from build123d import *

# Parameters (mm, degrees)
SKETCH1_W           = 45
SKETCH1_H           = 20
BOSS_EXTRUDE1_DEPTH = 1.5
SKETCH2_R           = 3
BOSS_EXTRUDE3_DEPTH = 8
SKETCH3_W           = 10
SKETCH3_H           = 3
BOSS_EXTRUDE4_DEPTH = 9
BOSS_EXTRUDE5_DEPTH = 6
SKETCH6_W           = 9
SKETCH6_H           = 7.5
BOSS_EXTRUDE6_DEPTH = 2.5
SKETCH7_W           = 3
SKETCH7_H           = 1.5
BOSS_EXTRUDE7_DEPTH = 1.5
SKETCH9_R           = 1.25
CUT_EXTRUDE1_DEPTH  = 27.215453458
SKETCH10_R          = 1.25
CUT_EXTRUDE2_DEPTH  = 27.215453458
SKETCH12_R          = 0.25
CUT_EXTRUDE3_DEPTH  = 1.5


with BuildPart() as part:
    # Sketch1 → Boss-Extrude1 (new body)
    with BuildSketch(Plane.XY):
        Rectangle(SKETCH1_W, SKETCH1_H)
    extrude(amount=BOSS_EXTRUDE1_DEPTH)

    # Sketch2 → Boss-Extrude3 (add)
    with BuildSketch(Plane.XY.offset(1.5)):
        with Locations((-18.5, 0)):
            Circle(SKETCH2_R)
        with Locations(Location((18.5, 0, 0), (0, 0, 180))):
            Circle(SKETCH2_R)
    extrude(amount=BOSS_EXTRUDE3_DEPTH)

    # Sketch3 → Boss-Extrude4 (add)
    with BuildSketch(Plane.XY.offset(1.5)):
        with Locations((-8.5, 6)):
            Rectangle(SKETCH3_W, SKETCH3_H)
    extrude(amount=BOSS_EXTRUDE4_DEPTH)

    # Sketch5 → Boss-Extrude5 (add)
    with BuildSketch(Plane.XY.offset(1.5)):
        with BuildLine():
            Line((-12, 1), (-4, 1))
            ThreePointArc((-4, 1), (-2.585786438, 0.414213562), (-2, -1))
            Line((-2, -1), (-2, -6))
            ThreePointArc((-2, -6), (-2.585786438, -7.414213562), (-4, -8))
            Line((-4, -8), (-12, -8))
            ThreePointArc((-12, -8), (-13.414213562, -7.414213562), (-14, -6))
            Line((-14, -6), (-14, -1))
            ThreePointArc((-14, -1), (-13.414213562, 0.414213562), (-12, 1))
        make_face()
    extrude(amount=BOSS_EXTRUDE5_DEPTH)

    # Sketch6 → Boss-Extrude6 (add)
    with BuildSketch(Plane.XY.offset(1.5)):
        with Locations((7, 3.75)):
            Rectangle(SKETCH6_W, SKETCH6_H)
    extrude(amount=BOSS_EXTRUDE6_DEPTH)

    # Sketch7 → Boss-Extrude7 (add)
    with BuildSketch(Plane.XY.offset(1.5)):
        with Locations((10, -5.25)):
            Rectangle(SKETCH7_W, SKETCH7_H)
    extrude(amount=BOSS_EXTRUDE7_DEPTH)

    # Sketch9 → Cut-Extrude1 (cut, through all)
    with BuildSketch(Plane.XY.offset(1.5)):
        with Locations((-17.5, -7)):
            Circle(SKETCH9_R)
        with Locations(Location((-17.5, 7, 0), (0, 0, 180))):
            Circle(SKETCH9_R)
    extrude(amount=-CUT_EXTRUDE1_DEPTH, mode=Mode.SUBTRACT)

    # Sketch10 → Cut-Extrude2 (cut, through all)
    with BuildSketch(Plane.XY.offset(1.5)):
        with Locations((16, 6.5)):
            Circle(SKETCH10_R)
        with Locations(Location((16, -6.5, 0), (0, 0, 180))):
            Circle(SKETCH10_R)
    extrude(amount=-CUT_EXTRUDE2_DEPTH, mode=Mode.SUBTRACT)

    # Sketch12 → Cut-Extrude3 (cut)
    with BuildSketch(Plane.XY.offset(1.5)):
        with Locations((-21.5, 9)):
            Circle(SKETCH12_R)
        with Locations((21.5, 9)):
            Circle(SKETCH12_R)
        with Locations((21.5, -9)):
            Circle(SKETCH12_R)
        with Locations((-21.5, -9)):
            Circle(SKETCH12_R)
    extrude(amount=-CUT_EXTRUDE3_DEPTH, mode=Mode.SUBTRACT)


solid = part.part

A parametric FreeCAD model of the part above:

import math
import FreeCAD as App
import Part
import Sketcher

V = App.Vector
Q = App.Units.Quantity


def add_polygon(sketch, points):
    """Adds a closed chain of lines whose ends are joined by coincident constraints."""
    first, n = sketch.GeometryCount, len(points)
    for a, b in zip(points, points[1:] + points[:1]):
        sketch.addGeometry(Part.LineSegment(App.Vector(*a, 0), App.Vector(*b, 0)), False)
    for i in range(n):
        sketch.addConstraint(Sketcher.Constraint("Coincident", first + i, 2, first + (i + 1) % n, 1))

doc = App.newDocument("Part")
body = doc.addObject("PartDesign::Body", "Body")

# Sketch on XY plane
sketch1 = doc.addObject("Sketcher::SketchObject", "Sketch")
body.addObject(sketch1)
sketch1.AttachmentSupport = (doc.XY_Plane, [""])
sketch1.MapMode = "FlatFace"
add_polygon(sketch1, [(-22.5, 10), (-22.5, -10), (22.5, -10), (22.5, 10)])  # lines 0-3
sketch1.addConstraint([
    Sketcher.Constraint("Vertical", 0),
    Sketcher.Constraint("Horizontal", 1),
    Sketcher.Constraint("Vertical", 2),
    Sketcher.Constraint("Horizontal", 3),
    Sketcher.Constraint("Symmetric", 0, 2, 2, 2, -1, 1),
    Sketcher.Constraint("DistanceX", 1, 1, 1, 2, Q("45 mm")),
    Sketcher.Constraint("DistanceY", 0, 2, 0, 1, Q("20 mm")),
])
pad1 = doc.addObject("PartDesign::Pad", "Pad")
body.addObject(pad1)
pad1.Profile = sketch1
pad1.Length = 1.5

# Sketch on XY plane
sketch2 = doc.addObject("Sketcher::SketchObject", "Sketch001")
body.addObject(sketch2)
sketch2.AttachmentSupport = (doc.XY_Plane, [""])
sketch2.MapMode = "FlatFace"
sketch2.AttachmentOffset = App.Placement(V(0, 0, 1.5), App.Rotation())
sketch2.addGeometry([
    Part.Circle(V(-18.5, 0, 0), V(0, 0, 1), 3),
    Part.Circle(V(18.5, 0, 0), V(0, 0, 1), 3),
], False)
sketch2.addConstraint([
    Sketcher.Constraint("Equal", 0, 1),
    Sketcher.Constraint("Symmetric", 0, 3, 1, 3, -1, 1),
    Sketcher.Constraint("PointOnObject", 0, 3, -1),
    Sketcher.Constraint("Diameter", 0, Q("6 mm")),
    Sketcher.Constraint("DistanceX", 0, 3, 1, 3, Q("37 mm")),
])
pad2 = doc.addObject("PartDesign::Pad", "Pad001")
body.addObject(pad2)
pad2.Profile = sketch2
pad2.Length = 8

# Sketch on XY plane
sketch3 = doc.addObject("Sketcher::SketchObject", "Sketch002")
body.addObject(sketch3)
sketch3.AttachmentSupport = (doc.XY_Plane, [""])
sketch3.MapMode = "FlatFace"
sketch3.AttachmentOffset = App.Placement(V(0, 0, 1.5), App.Rotation())
add_polygon(sketch3, [(-13.5, 7.5), (-13.5, 4.5), (-3.5, 4.5), (-3.5, 7.5)])  # lines 0-3
sketch3.addConstraint([
    Sketcher.Constraint("Vertical", 0),
    Sketcher.Constraint("Horizontal", 1),
    Sketcher.Constraint("Vertical", 2),
    Sketcher.Constraint("Horizontal", 3),
    Sketcher.Constraint("DistanceX", 1, 1, 1, 2, Q("10 mm")),
    Sketcher.Constraint("DistanceY", 0, 2, 0, 1, Q("3 mm")),
    Sketcher.Constraint("DistanceX", 0, 2, -1, 1, Q("13.5 mm")),
    Sketcher.Constraint("DistanceY", -1, 1, 0, 2, Q("4.5 mm")),
])
pad3 = doc.addObject("PartDesign::Pad", "Pad002")
body.addObject(pad3)
pad3.Profile = sketch3
pad3.Length = 9

# Sketch on XY plane
sketch4 = doc.addObject("Sketcher::SketchObject", "Sketch003")
body.addObject(sketch4)
sketch4.AttachmentSupport = (doc.XY_Plane, [""])
sketch4.MapMode = "FlatFace"
sketch4.AttachmentOffset = App.Placement(V(0, 0, 1.5), App.Rotation())
sketch4.addGeometry([
    Part.LineSegment(V(-4, 1, 0), V(-12, 1, 0)),  # 0
    Part.ArcOfCircle(Part.Circle(V(-12, -1, 0), V(0, 0, 1), 2), math.radians(90), math.radians(180)),  # 1
    Part.LineSegment(V(-14, -1, 0), V(-14, -6, 0)),  # 2
    Part.ArcOfCircle(Part.Circle(V(-12, -6, 0), V(0, 0, 1), 2), math.radians(-180), math.radians(-90)),  # 3
    Part.LineSegment(V(-12, -8, 0), V(-4, -8, 0)),  # 4
    Part.ArcOfCircle(Part.Circle(V(-4, -6, 0), V(0, 0, 1), 2), math.radians(-90), math.radians(0)),  # 5
    Part.LineSegment(V(-2, -6, 0), V(-2, -1, 0)),  # 6
    Part.ArcOfCircle(Part.Circle(V(-4, -1, 0), V(0, 0, 1), 2), math.radians(0), math.radians(90)),  # 7
], False)
sketch4.addConstraint([
    Sketcher.Constraint("Tangent", 0, 2, 1, 1),
    Sketcher.Constraint("Tangent", 1, 2, 2, 1),
    Sketcher.Constraint("Tangent", 2, 2, 3, 1),
    Sketcher.Constraint("Tangent", 3, 2, 4, 1),
    Sketcher.Constraint("Tangent", 4, 2, 5, 1),
    Sketcher.Constraint("Tangent", 5, 2, 6, 1),
    Sketcher.Constraint("Tangent", 6, 2, 7, 1),
    Sketcher.Constraint("Tangent", 7, 2, 0, 1),
    Sketcher.Constraint("Horizontal", 0),
    Sketcher.Constraint("Vertical", 2),
    Sketcher.Constraint("Horizontal", 4),
    Sketcher.Constraint("Vertical", 6),
    Sketcher.Constraint("Equal", 1, 3),
    Sketcher.Constraint("Equal", 3, 5),
    Sketcher.Constraint("Equal", 5, 7),
    Sketcher.Constraint("Radius", 1, Q("2 mm")),
    Sketcher.Constraint("DistanceX", 0, 2, 0, 1, Q("8 mm")),
    Sketcher.Constraint("DistanceY", 2, 2, 2, 1, Q("5 mm")),
    Sketcher.Constraint("DistanceX", 1, 3, -1, 1, Q("12 mm")),
    Sketcher.Constraint("DistanceY", 1, 3, -1, 1, Q("1 mm")),
])
pad4 = doc.addObject("PartDesign::Pad", "Pad003")
body.addObject(pad4)
pad4.Profile = sketch4
pad4.Length = 6

# Sketch on XY plane
sketch5 = doc.addObject("Sketcher::SketchObject", "Sketch004")
body.addObject(sketch5)
sketch5.AttachmentSupport = (doc.XY_Plane, [""])
sketch5.MapMode = "FlatFace"
sketch5.AttachmentOffset = App.Placement(V(0, 0, 1.5), App.Rotation())
add_polygon(sketch5, [(2.5, 7.5), (2.5, 0), (11.5, 0), (11.5, 7.5)])  # lines 0-3
sketch5.addConstraint([
    Sketcher.Constraint("Vertical", 0),
    Sketcher.Constraint("Horizontal", 1),
    Sketcher.Constraint("Vertical", 2),
    Sketcher.Constraint("Horizontal", 3),
    Sketcher.Constraint("PointOnObject", 0, 2, -1),
    Sketcher.Constraint("DistanceX", 1, 1, 1, 2, Q("9 mm")),
    Sketcher.Constraint("DistanceY", 0, 2, 0, 1, Q("7.5 mm")),
    Sketcher.Constraint("DistanceX", -1, 1, 0, 2, Q("2.5 mm")),
])
pad5 = doc.addObject("PartDesign::Pad", "Pad004")
body.addObject(pad5)
pad5.Profile = sketch5
pad5.Length = 2.5

# Sketch on XY plane
sketch6 = doc.addObject("Sketcher::SketchObject", "Sketch005")
body.addObject(sketch6)
sketch6.AttachmentSupport = (doc.XY_Plane, [""])
sketch6.MapMode = "FlatFace"
sketch6.AttachmentOffset = App.Placement(V(0, 0, 1.5), App.Rotation())
add_polygon(sketch6, [(8.5, -4.5), (8.5, -6), (11.5, -6), (11.5, -4.5)])  # lines 0-3
sketch6.addConstraint([
    Sketcher.Constraint("Vertical", 0),
    Sketcher.Constraint("Horizontal", 1),
    Sketcher.Constraint("Vertical", 2),
    Sketcher.Constraint("Horizontal", 3),
    Sketcher.Constraint("DistanceX", 1, 1, 1, 2, Q("3 mm")),
    Sketcher.Constraint("DistanceY", 0, 2, 0, 1, Q("1.5 mm")),
    Sketcher.Constraint("DistanceY", 0, 2, -1, 1, Q("6 mm")),
    Sketcher.Constraint("DistanceX", -1, 1, 0, 2, Q("8.5 mm")),
])
pad6 = doc.addObject("PartDesign::Pad", "Pad005")
body.addObject(pad6)
pad6.Profile = sketch6
pad6.Length = 1.5

# Sketch on XY plane
sketch7 = doc.addObject("Sketcher::SketchObject", "Sketch006")
body.addObject(sketch7)
sketch7.AttachmentSupport = (doc.XY_Plane, [""])
sketch7.MapMode = "FlatFace"
sketch7.AttachmentOffset = App.Placement(V(0, 0, 1.5), App.Rotation())
sketch7.addGeometry([
    Part.Circle(V(-17.5, -7, 0), V(0, 0, 1), 1.25),
    Part.Circle(V(-17.5, 7, 0), V(0, 0, 1), 1.25),
], False)
sketch7.addConstraint([
    Sketcher.Constraint("Equal", 0, 1),
    Sketcher.Constraint("Symmetric", 0, 3, 1, 3, -1),
    Sketcher.Constraint("Diameter", 0, Q("2.5 mm")),
    Sketcher.Constraint("DistanceY", 0, 3, -1, 1, Q("7 mm")),
    Sketcher.Constraint("DistanceX", 0, 3, -1, 1, Q("17.5 mm")),
])
pocket1 = doc.addObject("PartDesign::Pocket", "Pocket")
body.addObject(pocket1)
pocket1.Profile = sketch7
pocket1.Type = "ThroughAll"

# Sketch on XY plane
sketch8 = doc.addObject("Sketcher::SketchObject", "Sketch007")
body.addObject(sketch8)
sketch8.AttachmentSupport = (doc.XY_Plane, [""])
sketch8.MapMode = "FlatFace"
sketch8.AttachmentOffset = App.Placement(V(0, 0, 1.5), App.Rotation())
sketch8.addGeometry([
    Part.Circle(V(16, 6.5, 0), V(0, 0, 1), 1.25),
    Part.Circle(V(16, -6.5, 0), V(0, 0, 1), 1.25),
], False)
sketch8.addConstraint([
    Sketcher.Constraint("Equal", 0, 1),
    Sketcher.Constraint("Symmetric", 0, 3, 1, 3, -1),
    Sketcher.Constraint("Diameter", 0, Q("2.5 mm")),
    Sketcher.Constraint("DistanceX", -1, 1, 0, 3, Q("16 mm")),
    Sketcher.Constraint("DistanceY", 1, 3, 0, 3, Q("13 mm")),
])
pocket2 = doc.addObject("PartDesign::Pocket", "Pocket001")
body.addObject(pocket2)
pocket2.Profile = sketch8
pocket2.Type = "ThroughAll"

# Sketch on XY plane
sketch9 = doc.addObject("Sketcher::SketchObject", "Sketch008")
body.addObject(sketch9)
sketch9.AttachmentSupport = (doc.XY_Plane, [""])
sketch9.MapMode = "FlatFace"
sketch9.AttachmentOffset = App.Placement(V(0, 0, 1.5), App.Rotation())
sketch9.addGeometry([
    Part.Circle(V(-21.5, 9, 0), V(0, 0, 1), 0.25),
    Part.Circle(V(21.5, 9, 0), V(0, 0, 1), 0.25),
    Part.Circle(V(21.5, -9, 0), V(0, 0, 1), 0.25),
    Part.Circle(V(-21.5, -9, 0), V(0, 0, 1), 0.25),
], False)
sketch9.addConstraint([
    Sketcher.Constraint("Equal", 0, 1),
    Sketcher.Constraint("Equal", 1, 2),
    Sketcher.Constraint("Equal", 2, 3),
    Sketcher.Constraint("Symmetric", 0, 3, 2, 3, -1, 1),
    Sketcher.Constraint("Symmetric", 1, 3, 3, 3, -1, 1),
    Sketcher.Constraint("Symmetric", 0, 3, 1, 3, -2),
    Sketcher.Constraint("Diameter", 0, Q("0.5 mm")),
    Sketcher.Constraint("DistanceY", -1, 1, 0, 3, Q("9 mm")),
    Sketcher.Constraint("DistanceX", 0, 3, 1, 3, Q("43 mm")),
])
pocket3 = doc.addObject("PartDesign::Pocket", "Pocket002")
body.addObject(pocket3)
pocket3.Profile = sketch9
pocket3.Length = 1.5

doc.recompute()
